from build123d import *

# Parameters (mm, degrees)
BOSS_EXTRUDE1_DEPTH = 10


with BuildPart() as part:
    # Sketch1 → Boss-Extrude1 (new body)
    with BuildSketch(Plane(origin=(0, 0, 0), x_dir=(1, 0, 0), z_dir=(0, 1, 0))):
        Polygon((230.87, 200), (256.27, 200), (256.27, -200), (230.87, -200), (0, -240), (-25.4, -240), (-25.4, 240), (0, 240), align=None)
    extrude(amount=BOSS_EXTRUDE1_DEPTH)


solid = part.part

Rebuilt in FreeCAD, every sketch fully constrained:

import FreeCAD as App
import Part
import Sketcher
from FreeCAD import Vector
Q = App.Units.Quantity

doc = App.newDocument("Part")
body = doc.addObject("PartDesign::Body", "Body")

# Sketch on XZ plane
sketch1 = body.newObject("Sketcher::SketchObject", "Sketch")
sketch1.AttachmentSupport = (doc.getObject("XZ_Plane"), [""])
sketch1.MapMode = "FlatFace"
sketch1.addGeometry([
    Part.LineSegment(Vector(256, -200, 0), Vector(231, -200, 0)),  # 0
    Part.LineSegment(Vector(231, -200, 0), Vector(0, -240, 0)),  # 1
    Part.LineSegment(Vector(0, -240, 0), Vector(-25, -240, 0)),  # 2
    Part.LineSegment(Vector(-25, -240, 0), Vector(-25, 240, 0)),  # 3
    Part.LineSegment(Vector(-25, 240, 0), Vector(0, 240, 0)),  # 4
    Part.LineSegment(Vector(0, 240, 0), Vector(231, 200, 0)),  # 5
    Part.LineSegment(Vector(231, 200, 0), Vector(256, 200, 0)),  # 6
    Part.LineSegment(Vector(256, 200, 0), Vector(256, -200, 0)),  # 7
], False)
sketch1.addConstraint([
    Sketcher.Constraint("Coincident", 0, 2, 1, 1),
    Sketcher.Constraint("Coincident", 1, 2, 2, 1),
    Sketcher.Constraint("Coincident", 2, 2, 3, 1),
    Sketcher.Constraint("Coincident", 3, 2, 4, 1),
    Sketcher.Constraint("Coincident", 4, 2, 5, 1),
    Sketcher.Constraint("Coincident", 5, 2, 6, 1),
    Sketcher.Constraint("Coincident", 6, 2, 7, 1),
    Sketcher.Constraint("Coincident", 7, 2, 0, 1),
    Sketcher.Constraint("Horizontal", 0),
    Sketcher.Constraint("Horizontal", 2),
    Sketcher.Constraint("Vertical", 3),
    Sketcher.Constraint("Horizontal", 4),
    Sketcher.Constraint("Horizontal", 6),
    Sketcher.Constraint("Vertical", 7),
    Sketcher.Constraint("Symmetric", 1, 2, 4, 2, -1, 1),
    Sketcher.Constraint("Symmetric", 0, 2, 5, 2, -1),
    Sketcher.Constraint("PointOnObject", 1, 2, -2),
    Sketcher.Constraint("Equal", 0, 2),
    Sketcher.Constraint("DistanceY", 3, 1, 3, 2, Q("480 mm")),
    Sketcher.Constraint("DistanceY", 7, 2, 7, 1, Q("400 mm")),
    Sketcher.Constraint("DistanceX", 0, 2, 0, 1, Q("25.4 mm")),
    Sketcher.Constraint("DistanceX", -1, 1, 0, 2, Q("230.87 mm")),
])
pad1 = body.newObject("PartDesign::Pad", "Pad")
pad1.Profile = sketch1
pad1.Length = 10
pad1.Reversed = True

doc.recompute()
